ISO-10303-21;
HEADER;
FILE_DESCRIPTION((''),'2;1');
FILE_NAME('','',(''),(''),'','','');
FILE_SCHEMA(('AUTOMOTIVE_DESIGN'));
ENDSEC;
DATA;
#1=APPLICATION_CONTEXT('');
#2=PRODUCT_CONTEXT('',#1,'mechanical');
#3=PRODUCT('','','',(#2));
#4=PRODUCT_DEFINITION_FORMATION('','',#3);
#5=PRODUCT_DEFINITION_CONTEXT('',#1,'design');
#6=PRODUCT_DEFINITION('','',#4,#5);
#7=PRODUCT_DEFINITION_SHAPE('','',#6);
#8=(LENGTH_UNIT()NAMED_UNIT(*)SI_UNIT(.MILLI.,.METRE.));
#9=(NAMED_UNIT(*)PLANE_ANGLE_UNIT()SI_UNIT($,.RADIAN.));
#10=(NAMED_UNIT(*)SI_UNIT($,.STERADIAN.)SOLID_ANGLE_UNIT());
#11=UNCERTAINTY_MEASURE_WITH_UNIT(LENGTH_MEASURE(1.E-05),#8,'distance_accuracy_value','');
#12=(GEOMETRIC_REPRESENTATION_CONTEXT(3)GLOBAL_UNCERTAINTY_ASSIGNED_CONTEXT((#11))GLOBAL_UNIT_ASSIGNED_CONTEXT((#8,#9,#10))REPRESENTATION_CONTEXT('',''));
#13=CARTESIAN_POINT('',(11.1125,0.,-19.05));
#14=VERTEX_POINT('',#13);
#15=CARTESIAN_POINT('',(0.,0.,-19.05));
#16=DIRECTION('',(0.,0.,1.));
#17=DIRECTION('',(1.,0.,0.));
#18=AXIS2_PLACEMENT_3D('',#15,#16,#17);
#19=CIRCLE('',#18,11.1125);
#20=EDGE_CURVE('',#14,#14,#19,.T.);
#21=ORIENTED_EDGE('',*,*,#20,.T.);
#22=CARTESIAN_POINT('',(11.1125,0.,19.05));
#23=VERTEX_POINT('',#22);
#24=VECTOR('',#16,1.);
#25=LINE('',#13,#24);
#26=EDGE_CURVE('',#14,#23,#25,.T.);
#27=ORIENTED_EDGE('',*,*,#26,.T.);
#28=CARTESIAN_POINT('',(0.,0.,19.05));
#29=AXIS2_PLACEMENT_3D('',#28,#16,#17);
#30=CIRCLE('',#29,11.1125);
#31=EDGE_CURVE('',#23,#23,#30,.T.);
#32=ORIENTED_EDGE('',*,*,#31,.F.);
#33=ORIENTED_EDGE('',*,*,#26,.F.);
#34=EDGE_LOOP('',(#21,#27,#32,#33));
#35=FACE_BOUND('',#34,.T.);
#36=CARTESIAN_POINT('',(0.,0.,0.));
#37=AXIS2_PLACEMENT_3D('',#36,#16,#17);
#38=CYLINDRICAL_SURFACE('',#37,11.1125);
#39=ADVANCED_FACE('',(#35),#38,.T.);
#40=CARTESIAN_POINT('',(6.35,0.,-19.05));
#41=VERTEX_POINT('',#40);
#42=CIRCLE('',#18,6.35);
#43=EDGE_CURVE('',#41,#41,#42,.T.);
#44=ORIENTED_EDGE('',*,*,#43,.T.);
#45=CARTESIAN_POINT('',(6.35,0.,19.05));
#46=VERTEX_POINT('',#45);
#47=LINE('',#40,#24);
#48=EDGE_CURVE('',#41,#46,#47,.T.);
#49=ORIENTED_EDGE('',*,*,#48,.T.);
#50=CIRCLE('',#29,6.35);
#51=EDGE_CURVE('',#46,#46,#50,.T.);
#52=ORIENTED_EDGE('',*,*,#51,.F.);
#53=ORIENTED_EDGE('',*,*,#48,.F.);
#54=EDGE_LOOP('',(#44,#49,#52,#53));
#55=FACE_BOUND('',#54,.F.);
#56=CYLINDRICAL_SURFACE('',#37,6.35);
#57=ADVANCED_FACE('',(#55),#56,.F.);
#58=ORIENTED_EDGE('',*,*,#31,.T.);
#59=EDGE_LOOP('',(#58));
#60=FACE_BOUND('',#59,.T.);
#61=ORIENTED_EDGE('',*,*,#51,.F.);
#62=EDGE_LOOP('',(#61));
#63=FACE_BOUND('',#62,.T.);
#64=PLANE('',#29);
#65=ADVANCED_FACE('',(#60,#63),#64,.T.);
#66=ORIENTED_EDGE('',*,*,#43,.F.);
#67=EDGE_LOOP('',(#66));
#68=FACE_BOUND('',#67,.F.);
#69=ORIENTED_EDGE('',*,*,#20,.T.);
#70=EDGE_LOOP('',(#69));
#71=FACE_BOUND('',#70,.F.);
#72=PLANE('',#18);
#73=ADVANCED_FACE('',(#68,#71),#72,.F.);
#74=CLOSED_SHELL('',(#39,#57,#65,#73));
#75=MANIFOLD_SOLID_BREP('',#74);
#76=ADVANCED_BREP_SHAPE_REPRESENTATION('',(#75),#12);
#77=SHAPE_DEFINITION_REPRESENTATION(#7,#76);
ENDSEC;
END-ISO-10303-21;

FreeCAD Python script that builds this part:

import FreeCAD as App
import Part
import Sketcher

V = App.Vector
Q = App.Units.Quantity

doc = App.newDocument("Part")
params = doc.addObject("Spreadsheet::Sheet", "Params")
for row, (alias, value) in enumerate([
    ("sketch1_diameter", "0.875 in"),
    ("pad1_length", "1.5 in"),
    ("sketch2_diameter", "0.5 in"),
    ("pocket1_length", "1.5 in"),
], start=1):
    params.set(f"A{row}", alias)
    params.set(f"B{row}", "=" + value)
    params.setAlias(f"B{row}", alias)

body = doc.addObject("PartDesign::Body", "Body")

# Sketch on XY plane
sketch1 = body.newObject("Sketcher::SketchObject", "Sketch")
sketch1.AttachmentSupport = (doc.getObject("XY_Plane"), [""])
sketch1.MapMode = "FlatFace"
sketch1.addGeometry(Part.Circle(V(0, 0, 0), V(0, 0, 1), 11), False)
sketch1.addConstraint(Sketcher.Constraint("Coincident", 0, 3, -1, 1))
sketch1.addConstraint(Sketcher.Constraint("Diameter", 0, Q("0.875 in")))
sketch1.setExpression("Constraints[1]", "Params.sketch1_diameter")
pad1 = body.newObject("PartDesign::Pad", "Pad")
pad1.Profile = sketch1
pad1.setExpression("Length", "Params.pad1_length")
pad1.Midplane = True

# Sketch on XY plane
sketch2 = body.newObject("Sketcher::SketchObject", "Sketch001")
sketch2.AttachmentSupport = (doc.getObject("XY_Plane"), [""])
sketch2.MapMode = "FlatFace"
sketch2.addGeometry(Part.Circle(V(0, 0, 0), V(0, 0, 1), 6), False)
sketch2.addConstraint(Sketcher.Constraint("Coincident", 0, 3, -1, 1))
sketch2.addConstraint(Sketcher.Constraint("Diameter", 0, Q("0.5 in")))
sketch2.setExpression("Constraints[1]", "Params.sketch2_diameter")
pocket1 = body.newObject("PartDesign::Pocket", "Pocket")
pocket1.Profile = sketch2
pocket1.setExpression("Length", "Params.pocket1_length")
pocket1.Midplane = True

doc.recompute()
